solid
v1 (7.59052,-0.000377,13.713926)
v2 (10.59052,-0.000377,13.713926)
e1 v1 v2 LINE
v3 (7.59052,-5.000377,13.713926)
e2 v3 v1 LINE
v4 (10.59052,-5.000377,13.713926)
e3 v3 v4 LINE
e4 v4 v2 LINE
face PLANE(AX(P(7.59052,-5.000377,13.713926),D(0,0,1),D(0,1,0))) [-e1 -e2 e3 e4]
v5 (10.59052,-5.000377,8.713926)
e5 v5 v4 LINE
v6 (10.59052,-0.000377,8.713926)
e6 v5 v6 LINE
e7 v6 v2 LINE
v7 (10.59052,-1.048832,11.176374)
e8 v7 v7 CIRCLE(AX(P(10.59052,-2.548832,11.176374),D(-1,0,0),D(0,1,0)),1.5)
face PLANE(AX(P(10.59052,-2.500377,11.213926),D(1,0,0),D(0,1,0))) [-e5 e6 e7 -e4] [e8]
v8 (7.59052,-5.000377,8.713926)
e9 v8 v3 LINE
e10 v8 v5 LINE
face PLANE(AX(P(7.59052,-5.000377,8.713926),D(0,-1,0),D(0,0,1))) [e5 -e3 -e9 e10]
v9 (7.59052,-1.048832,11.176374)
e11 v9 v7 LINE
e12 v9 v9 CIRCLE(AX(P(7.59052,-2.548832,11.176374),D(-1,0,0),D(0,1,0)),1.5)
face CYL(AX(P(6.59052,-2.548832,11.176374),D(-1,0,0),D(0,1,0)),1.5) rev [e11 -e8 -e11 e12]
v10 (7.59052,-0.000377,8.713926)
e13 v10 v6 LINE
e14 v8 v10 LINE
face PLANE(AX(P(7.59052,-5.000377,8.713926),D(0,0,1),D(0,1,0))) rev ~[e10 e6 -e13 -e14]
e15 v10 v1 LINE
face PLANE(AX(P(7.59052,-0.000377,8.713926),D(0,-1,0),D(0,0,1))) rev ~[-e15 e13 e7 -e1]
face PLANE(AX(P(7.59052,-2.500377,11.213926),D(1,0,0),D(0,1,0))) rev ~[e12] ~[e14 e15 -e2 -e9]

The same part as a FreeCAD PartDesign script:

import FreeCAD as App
import Part
import Sketcher
from FreeCAD import Vector


def add_polygon(sketch, points):
    """Adds a closed chain of lines whose ends are joined by coincident constraints."""
    first, n = sketch.GeometryCount, len(points)
    for a, b in zip(points, points[1:] + points[:1]):
        sketch.addGeometry(Part.LineSegment(App.Vector(*a, 0), App.Vector(*b, 0)), False)
    for i in range(n):
        sketch.addConstraint(Sketcher.Constraint("Coincident", first + i, 2, first + (i + 1) % n, 1))

doc = App.newDocument("Part")
body = doc.addObject("PartDesign::Body", "Body")

# Sketch on YZ plane
sketch1 = body.newObject("Sketcher::SketchObject", "Sketch")
sketch1.AttachmentSupport = (doc.getObject("YZ_Plane"), [""])
sketch1.MapMode = "FlatFace"
sketch1.AttachmentOffset = App.Placement(Vector(0, 0, 3), App.Rotation())
sketch1.addGeometry(Part.Circle(Vector(-16.6, 42.9, 0), Vector(0, 0, 1), 1.5), False)
sketch1.addConstraint([
    Sketcher.Constraint("Diameter", 0, 3.0),
    Sketcher.Constraint("DistanceX", 0, 3, -1, 1, 16.618832),
    Sketcher.Constraint("DistanceY", -1, 1, 0, 3, 42.892174),
])
pad1 = body.newObject("PartDesign::Pad", "Pad")
pad1.Profile = sketch1
pad1.Length = 5
body2 = doc.addObject("PartDesign::Body", "Body001")
doc.recompute()

body.Placement = App.Placement(Vector(-4, 0, 0), App.Rotation(Vector(0, 0, 1), 0))
boolean = body2.newObject("PartDesign::Boolean", "Boolean")
boolean.Type = "Fuse"
boolean.addObjects([body])
body3 = doc.addObject("PartDesign::Body", "Body002")

# Sketch on YZ plane
sketch2 = body3.newObject("Sketcher::SketchObject", "Sketch001")
sketch2.AttachmentSupport = (doc.getObject("YZ_Plane002"), [""])
sketch2.MapMode = "FlatFace"
add_polygon(sketch2, [(-19, 45), (-19, 40), (-14, 40), (-14, 45)])  # lines 0-3
sketch2.addConstraint([
    Sketcher.Constraint("Vertical", 0),
    Sketcher.Constraint("Horizontal", 1),
    Sketcher.Constraint("Vertical", 2),
    Sketcher.Constraint("Horizontal", 3),
    Sketcher.Constraint("Equal", 3, 0),
    Sketcher.Constraint("DistanceX", 1, 1, 1, 2, 5.0),
    Sketcher.Constraint("DistanceX", 0, 2, -1, 1, 19.070377),
    Sketcher.Constraint("DistanceY", -1, 1, 0, 2, 40.429726),
])
pad2 = body3.newObject("PartDesign::Pad", "Pad001")
pad2.Profile = sketch2
pad2.Length = 3
doc.recompute()

boolean2 = body3.newObject("PartDesign::Boolean", "Boolean001")
boolean2.Type = "Cut"
boolean2.addObjects([body2])
body4 = doc.addObject("PartDesign::Body", "Body003")
doc.recompute()

body3.Placement = App.Placement(Vector(7.59052, 14.07, -31.7158), App.Rotation(Vector(0, 0, 1), 0))
boolean3 = body4.newObject("PartDesign::Boolean", "Boolean002")
boolean3.Type = "Fuse"
boolean3.addObjects([body3])

doc.recompute()
